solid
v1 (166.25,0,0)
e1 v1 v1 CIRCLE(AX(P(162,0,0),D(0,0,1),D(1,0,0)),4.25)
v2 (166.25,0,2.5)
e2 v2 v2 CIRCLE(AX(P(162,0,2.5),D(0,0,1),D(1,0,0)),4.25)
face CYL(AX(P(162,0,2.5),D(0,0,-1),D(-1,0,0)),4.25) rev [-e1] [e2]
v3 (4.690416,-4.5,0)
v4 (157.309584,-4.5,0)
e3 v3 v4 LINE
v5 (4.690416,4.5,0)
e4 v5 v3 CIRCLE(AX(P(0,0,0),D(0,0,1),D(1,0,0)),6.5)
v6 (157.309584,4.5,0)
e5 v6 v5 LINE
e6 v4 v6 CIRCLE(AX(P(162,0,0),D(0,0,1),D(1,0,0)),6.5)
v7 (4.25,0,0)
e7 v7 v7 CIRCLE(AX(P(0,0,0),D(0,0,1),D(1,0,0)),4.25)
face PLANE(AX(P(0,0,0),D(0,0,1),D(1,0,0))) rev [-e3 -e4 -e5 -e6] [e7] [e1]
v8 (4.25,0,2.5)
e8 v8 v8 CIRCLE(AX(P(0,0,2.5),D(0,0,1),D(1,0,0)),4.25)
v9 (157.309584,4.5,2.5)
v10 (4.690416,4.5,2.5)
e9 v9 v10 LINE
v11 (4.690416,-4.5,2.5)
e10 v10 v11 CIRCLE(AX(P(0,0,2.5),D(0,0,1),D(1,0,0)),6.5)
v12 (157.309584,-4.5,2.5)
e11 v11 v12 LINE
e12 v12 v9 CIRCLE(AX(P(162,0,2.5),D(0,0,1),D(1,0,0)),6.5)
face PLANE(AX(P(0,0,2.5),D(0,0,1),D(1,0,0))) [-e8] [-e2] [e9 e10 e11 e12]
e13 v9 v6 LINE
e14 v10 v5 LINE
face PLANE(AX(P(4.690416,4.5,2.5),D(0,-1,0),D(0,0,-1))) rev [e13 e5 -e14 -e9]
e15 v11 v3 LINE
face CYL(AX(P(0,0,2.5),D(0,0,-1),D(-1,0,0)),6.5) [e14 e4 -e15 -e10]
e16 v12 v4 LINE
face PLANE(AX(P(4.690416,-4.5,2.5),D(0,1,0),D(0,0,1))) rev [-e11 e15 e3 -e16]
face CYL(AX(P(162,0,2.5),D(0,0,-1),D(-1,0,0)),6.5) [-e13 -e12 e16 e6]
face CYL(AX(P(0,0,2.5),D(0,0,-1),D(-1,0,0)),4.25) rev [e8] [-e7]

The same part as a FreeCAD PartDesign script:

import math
import FreeCAD as App
import Part
import Sketcher

V = App.Vector
Q = App.Units.Quantity

doc = App.newDocument("Part")
body = doc.addObject("PartDesign::Body", "Body")

sketch1 = body.newObject("Sketcher::SketchObject", "Sketch")
sketch1.AttachmentSupport = (doc.getObject("XY_Plane"), [""])
sketch1.MapMode = "FlatFace"
sketch1.addGeometry(Part.LineSegment(V(157.3, 4.5, 0), V(4.7, 4.5, 0)), False)
sketch1.addGeometry(Part.ArcOfCircle(Part.Circle(V(0, 0, 0), V(0, 0, 1), 6.5), math.radians(44), math.radians(316)), False)
sketch1.addGeometry(Part.LineSegment(V(4.7, -4.5, 0), V(157.3, -4.5, 0)), False)
sketch1.addGeometry(Part.ArcOfCircle(Part.Circle(V(162, 0, 0), V(0, 0, 1), 6.5), math.radians(-136), math.radians(136)), False)
sketch1.addGeometry(Part.Circle(V(162, 0, 0), V(0, 0, 1), 4.2), False)
sketch1.addGeometry(Part.Circle(V(0, 0, 0), V(0, 0, 1), 4.2), False)
sketch1.addConstraint(Sketcher.Constraint("Coincident", 0, 2, 1, 1))
sketch1.addConstraint(Sketcher.Constraint("Coincident", 1, 2, 2, 1))
sketch1.addConstraint(Sketcher.Constraint("Coincident", 2, 2, 3, 1))
sketch1.addConstraint(Sketcher.Constraint("Coincident", 3, 2, 0, 1))
sketch1.addConstraint(Sketcher.Constraint("Horizontal", 0))
sketch1.addConstraint(Sketcher.Constraint("Horizontal", 2))
sketch1.addConstraint(Sketcher.Constraint("Coincident", 1, 3, -1, 1))
sketch1.addConstraint(Sketcher.Constraint("Coincident", 5, 3, -1, 1))
sketch1.addConstraint(Sketcher.Constraint("Coincident", 4, 3, 3, 3))
sketch1.addConstraint(Sketcher.Constraint("Equal", 1, 3))
sketch1.addConstraint(Sketcher.Constraint("Equal", 4, 5))
sketch1.addConstraint(Sketcher.Constraint("Symmetric", 2, 2, 3, 2, -1))
sketch1.addConstraint(Sketcher.Constraint("Diameter", 4, Q("8.5 mm")))
sketch1.addConstraint(Sketcher.Constraint("Radius", 1, Q("6.5 mm")))
sketch1.addConstraint(Sketcher.Constraint("DistanceX", -1, 1, 3, 3, Q("162 mm")))
sketch1.addConstraint(Sketcher.Constraint("DistanceY", 1, 2, 0, 2, Q("9 mm")))
pad1 = body.newObject("PartDesign::Pad", "Pad")
pad1.Profile = sketch1
pad1.Length = 2.5

doc.recompute()
